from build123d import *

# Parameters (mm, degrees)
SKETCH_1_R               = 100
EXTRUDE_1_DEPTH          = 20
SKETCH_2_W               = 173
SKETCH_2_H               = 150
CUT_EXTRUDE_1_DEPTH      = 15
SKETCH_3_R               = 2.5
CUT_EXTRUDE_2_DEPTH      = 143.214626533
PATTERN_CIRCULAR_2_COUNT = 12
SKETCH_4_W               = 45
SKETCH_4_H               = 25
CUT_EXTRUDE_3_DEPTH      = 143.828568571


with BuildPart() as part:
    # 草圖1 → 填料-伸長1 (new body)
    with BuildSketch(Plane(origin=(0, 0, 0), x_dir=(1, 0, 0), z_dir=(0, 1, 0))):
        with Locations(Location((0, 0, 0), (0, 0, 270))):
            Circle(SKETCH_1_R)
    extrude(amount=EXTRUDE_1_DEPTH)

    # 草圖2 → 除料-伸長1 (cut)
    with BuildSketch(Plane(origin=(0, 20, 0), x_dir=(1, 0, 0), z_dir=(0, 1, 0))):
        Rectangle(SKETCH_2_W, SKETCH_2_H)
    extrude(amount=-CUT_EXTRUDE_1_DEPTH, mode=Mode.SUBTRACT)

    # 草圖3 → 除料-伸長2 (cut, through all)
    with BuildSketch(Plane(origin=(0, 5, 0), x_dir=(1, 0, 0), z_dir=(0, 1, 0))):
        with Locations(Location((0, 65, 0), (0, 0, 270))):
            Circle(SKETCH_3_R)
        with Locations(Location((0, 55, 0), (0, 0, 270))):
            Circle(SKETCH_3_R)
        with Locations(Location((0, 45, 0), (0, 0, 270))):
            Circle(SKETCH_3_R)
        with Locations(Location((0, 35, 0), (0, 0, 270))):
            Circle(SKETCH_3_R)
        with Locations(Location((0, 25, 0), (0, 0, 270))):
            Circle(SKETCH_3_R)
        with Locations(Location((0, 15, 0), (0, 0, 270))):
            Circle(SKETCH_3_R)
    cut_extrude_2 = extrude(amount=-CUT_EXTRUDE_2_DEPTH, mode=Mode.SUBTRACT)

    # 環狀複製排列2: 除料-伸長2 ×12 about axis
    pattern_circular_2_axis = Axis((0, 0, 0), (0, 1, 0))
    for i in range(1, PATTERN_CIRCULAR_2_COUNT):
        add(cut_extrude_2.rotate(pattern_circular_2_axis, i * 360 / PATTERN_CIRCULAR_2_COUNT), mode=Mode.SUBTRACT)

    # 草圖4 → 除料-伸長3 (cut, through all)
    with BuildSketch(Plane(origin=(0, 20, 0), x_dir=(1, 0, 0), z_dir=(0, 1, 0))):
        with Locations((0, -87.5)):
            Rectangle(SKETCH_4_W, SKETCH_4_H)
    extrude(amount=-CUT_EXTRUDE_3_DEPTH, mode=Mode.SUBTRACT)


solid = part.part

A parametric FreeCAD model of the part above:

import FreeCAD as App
import Part
import Sketcher
Q = App.Units.Quantity

doc = App.newDocument("Part")
body = doc.addObject("PartDesign::Body", "Body")

# Sketch on XZ plane
sketch1 = body.newObject("Sketcher::SketchObject", "Sketch")
sketch1.AttachmentSupport = (doc.getObject("XZ_Plane"), [""])
sketch1.MapMode = "FlatFace"
sketch1.addGeometry(Part.Circle(App.Vector(0, 0, 0), App.Vector(0, 0, 1), 100), False)
sketch1.addConstraint(Sketcher.Constraint("Coincident", 0, 3, -1, 1))
sketch1.addConstraint(Sketcher.Constraint("Diameter", 0, Q("200 mm")))
pad1 = body.newObject("PartDesign::Pad", "Pad")
pad1.Profile = sketch1
pad1.Length = 20
pad1.Reversed = True

# Sketch on XZ plane
sketch2 = body.newObject("Sketcher::SketchObject", "Sketch001")
sketch2.AttachmentSupport = (doc.getObject("XZ_Plane"), [""])
sketch2.MapMode = "FlatFace"
sketch2.AttachmentOffset = App.Placement(App.Vector(0, 0, -20), App.Rotation())
sketch2.addGeometry(Part.LineSegment(App.Vector(-86, -75, 0), App.Vector(-86, 75, 0)), False)
sketch2.addGeometry(Part.LineSegment(App.Vector(-86, 75, 0), App.Vector(86, 75, 0)), False)
sketch2.addGeometry(Part.LineSegment(App.Vector(86, 75, 0), App.Vector(86, -75, 0)), False)
sketch2.addGeometry(Part.LineSegment(App.Vector(86, -75, 0), App.Vector(-86, -75, 0)), False)
sketch2.addConstraint(Sketcher.Constraint("Coincident", 0, 2, 1, 1))
sketch2.addConstraint(Sketcher.Constraint("Coincident", 1, 2, 2, 1))
sketch2.addConstraint(Sketcher.Constraint("Coincident", 2, 2, 3, 1))
sketch2.addConstraint(Sketcher.Constraint("Coincident", 3, 2, 0, 1))
sketch2.addConstraint(Sketcher.Constraint("Vertical", 0))
sketch2.addConstraint(Sketcher.Constraint("Horizontal", 1))
sketch2.addConstraint(Sketcher.Constraint("Vertical", 2))
sketch2.addConstraint(Sketcher.Constraint("Horizontal", 3))
sketch2.addConstraint(Sketcher.Constraint("Symmetric", 0, 2, 2, 2, -1, 1))
sketch2.addConstraint(Sketcher.Constraint("DistanceX", 1, 1, 1, 2, Q("173 mm")))
sketch2.addConstraint(Sketcher.Constraint("DistanceY", 0, 1, 0, 2, Q("150 mm")))
pocket1 = body.newObject("PartDesign::Pocket", "Pocket")
pocket1.Profile = sketch2
pocket1.Length = 15
pocket1.Reversed = True

# Sketch on XZ plane
sketch3 = body.newObject("Sketcher::SketchObject", "Sketch002")
sketch3.AttachmentSupport = (doc.getObject("XZ_Plane"), [""])
sketch3.MapMode = "FlatFace"
sketch3.AttachmentOffset = App.Placement(App.Vector(0, 0, -5), App.Rotation())
sketch3.addGeometry(Part.Circle(App.Vector(0, -65, 0), App.Vector(0, 0, 1), 2.5), False)
sketch3.addGeometry(Part.Circle(App.Vector(0, -55, 0), App.Vector(0, 0, 1), 2.5), False)
sketch3.addGeometry(Part.Circle(App.Vector(0, -45, 0), App.Vector(0, 0, 1), 2.5), False)
sketch3.addGeometry(Part.Circle(App.Vector(0, -35, 0), App.Vector(0, 0, 1), 2.5), False)
sketch3.addGeometry(Part.Circle(App.Vector(0, -25, 0), App.Vector(0, 0, 1), 2.5), False)
sketch3.addGeometry(Part.Circle(App.Vector(0, -15, 0), App.Vector(0, 0, 1), 2.5), False)
sketch3.addConstraint(Sketcher.Constraint("Equal", 0, 1))
sketch3.addConstraint(Sketcher.Constraint("Equal", 1, 2))
sketch3.addConstraint(Sketcher.Constraint("Equal", 2, 3))
sketch3.addConstraint(Sketcher.Constraint("Equal", 3, 4))
sketch3.addConstraint(Sketcher.Constraint("Equal", 4, 5))
sketch3.addConstraint(Sketcher.Constraint("PointOnObject", 0, 3, -2))
sketch3.addConstraint(Sketcher.Constraint("PointOnObject", 1, 3, -2))
sketch3.addConstraint(Sketcher.Constraint("PointOnObject", 2, 3, -2))
sketch3.addConstraint(Sketcher.Constraint("PointOnObject", 3, 3, -2))
sketch3.addConstraint(Sketcher.Constraint("PointOnObject", 4, 3, -2))
sketch3.addConstraint(Sketcher.Constraint("PointOnObject", 5, 3, -2))
sketch3.addConstraint(Sketcher.Constraint("Diameter", 0, Q("5 mm")))
sketch3.addConstraint(Sketcher.Constraint("DistanceY", 0, 3, -1, 1, Q("65 mm")))
sketch3.addConstraint(Sketcher.Constraint("DistanceY", 1, 3, -1, 1, Q("55 mm")))
sketch3.addConstraint(Sketcher.Constraint("DistanceY", 2, 3, -1, 1, Q("45 mm")))
sketch3.addConstraint(Sketcher.Constraint("DistanceY", 3, 3, -1, 1, Q("35 mm")))
sketch3.addConstraint(Sketcher.Constraint("DistanceY", 4, 3, -1, 1, Q("25 mm")))
sketch3.addConstraint(Sketcher.Constraint("DistanceY", 5, 3, -1, 1, Q("15 mm")))
pocket2 = body.newObject("PartDesign::Pocket", "Pocket001")
pocket2.Profile = sketch3
pocket2.Type = "ThroughAll"
pocket2.Reversed = True
doc.recompute()

polarpattern = body.newObject("PartDesign::PolarPattern", "PolarPattern")
polarpattern.Originals = [pocket2]
polarpattern.Axis = (doc.getObject("Y_Axis"), [""])
polarpattern.Angle = 360
polarpattern.Occurrences = 12
body.Tip = polarpattern

# Sketch on XZ plane
sketch4 = body.newObject("Sketcher::SketchObject", "Sketch003")
sketch4.AttachmentSupport = (doc.getObject("XZ_Plane"), [""])
sketch4.MapMode = "FlatFace"
sketch4.AttachmentOffset = App.Placement(App.Vector(0, 0, -20), App.Rotation())
sketch4.addGeometry(Part.LineSegment(App.Vector(-22, 75, 0), App.Vector(-22, 100, 0)), False)
sketch4.addGeometry(Part.LineSegment(App.Vector(-22, 100, 0), App.Vector(22, 100, 0)), False)
sketch4.addGeometry(Part.LineSegment(App.Vector(22, 100, 0), App.Vector(22, 75, 0)), False)
sketch4.addGeometry(Part.LineSegment(App.Vector(22, 75, 0), App.Vector(-22, 75, 0)), False)
sketch4.addConstraint(Sketcher.Constraint("Coincident", 0, 2, 1, 1))
sketch4.addConstraint(Sketcher.Constraint("Coincident", 1, 2, 2, 1))
sketch4.addConstraint(Sketcher.Constraint("Coincident", 2, 2, 3, 1))
sketch4.addConstraint(Sketcher.Constraint("Coincident", 3, 2, 0, 1))
sketch4.addConstraint(Sketcher.Constraint("Vertical", 0))
sketch4.addConstraint(Sketcher.Constraint("Horizontal", 1))
sketch4.addConstraint(Sketcher.Constraint("Vertical", 2))
sketch4.addConstraint(Sketcher.Constraint("Horizontal", 3))
sketch4.addConstraint(Sketcher.Constraint("DistanceX", 1, 1, 1, 2, Q("45 mm")))
sketch4.addConstraint(Sketcher.Constraint("DistanceY", 0, 1, 0, 2, Q("25 mm")))
sketch4.addConstraint(Sketcher.Constraint("DistanceY", -1, 1, 0, 2, Q("100 mm")))
sketch4.addConstraint(Sketcher.Constraint("DistanceX", 0, 2, -1, 1, Q("22.5 mm")))
pocket3 = body.newObject("PartDesign::Pocket", "Pocket002")
pocket3.Profile = sketch4
pocket3.Type = "ThroughAll"
pocket3.Reversed = True

doc.recompute()
